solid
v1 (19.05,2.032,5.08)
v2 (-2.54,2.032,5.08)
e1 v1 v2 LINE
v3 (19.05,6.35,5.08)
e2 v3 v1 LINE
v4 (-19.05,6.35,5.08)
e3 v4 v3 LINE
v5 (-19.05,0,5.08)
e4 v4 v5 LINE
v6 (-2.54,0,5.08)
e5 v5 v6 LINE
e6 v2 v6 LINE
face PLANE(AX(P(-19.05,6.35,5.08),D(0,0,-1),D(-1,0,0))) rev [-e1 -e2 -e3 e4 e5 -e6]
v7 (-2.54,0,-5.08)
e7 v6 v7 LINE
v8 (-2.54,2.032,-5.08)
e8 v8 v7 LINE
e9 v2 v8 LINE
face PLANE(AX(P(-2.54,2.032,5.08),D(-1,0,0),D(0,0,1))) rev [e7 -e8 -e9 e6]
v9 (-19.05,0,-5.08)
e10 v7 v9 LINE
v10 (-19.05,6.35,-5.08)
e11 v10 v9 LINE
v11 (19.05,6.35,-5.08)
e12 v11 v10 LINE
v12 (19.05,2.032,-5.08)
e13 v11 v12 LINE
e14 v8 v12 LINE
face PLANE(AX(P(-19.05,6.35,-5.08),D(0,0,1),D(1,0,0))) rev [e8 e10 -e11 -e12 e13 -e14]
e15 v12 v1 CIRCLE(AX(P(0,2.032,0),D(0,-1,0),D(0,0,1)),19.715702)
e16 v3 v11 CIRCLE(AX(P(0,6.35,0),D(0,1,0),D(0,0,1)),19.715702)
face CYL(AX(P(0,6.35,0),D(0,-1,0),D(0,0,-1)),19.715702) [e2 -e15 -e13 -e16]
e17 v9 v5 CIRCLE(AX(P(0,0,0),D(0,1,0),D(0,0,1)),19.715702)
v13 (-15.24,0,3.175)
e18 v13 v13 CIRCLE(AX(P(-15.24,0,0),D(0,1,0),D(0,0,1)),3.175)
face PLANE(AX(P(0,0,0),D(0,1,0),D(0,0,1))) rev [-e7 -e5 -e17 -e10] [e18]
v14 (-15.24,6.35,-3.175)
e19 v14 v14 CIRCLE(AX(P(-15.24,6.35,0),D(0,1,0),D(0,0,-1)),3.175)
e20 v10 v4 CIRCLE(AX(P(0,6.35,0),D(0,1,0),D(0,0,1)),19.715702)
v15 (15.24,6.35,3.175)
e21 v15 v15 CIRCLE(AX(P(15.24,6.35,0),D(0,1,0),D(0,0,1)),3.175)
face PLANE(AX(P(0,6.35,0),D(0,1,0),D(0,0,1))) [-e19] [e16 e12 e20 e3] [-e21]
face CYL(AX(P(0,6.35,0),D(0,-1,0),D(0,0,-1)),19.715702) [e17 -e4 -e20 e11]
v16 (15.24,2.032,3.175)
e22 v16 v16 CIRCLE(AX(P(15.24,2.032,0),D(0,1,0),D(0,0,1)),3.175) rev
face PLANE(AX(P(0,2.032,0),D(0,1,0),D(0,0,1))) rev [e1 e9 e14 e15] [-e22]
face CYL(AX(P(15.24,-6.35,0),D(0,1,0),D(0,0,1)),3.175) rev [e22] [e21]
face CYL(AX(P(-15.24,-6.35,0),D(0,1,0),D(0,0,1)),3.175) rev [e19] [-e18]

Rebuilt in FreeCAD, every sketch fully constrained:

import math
import FreeCAD as App
import Part
import Sketcher
Q = App.Units.Quantity

doc = App.newDocument("Part")
body = doc.addObject("PartDesign::Body", "Body")

# Sketch on XZ plane
sketch1 = body.newObject("Sketcher::SketchObject", "Sketch")
sketch1.AttachmentSupport = (doc.getObject("XZ_Plane"), [""])
sketch1.MapMode = "FlatFace"
sketch1.addGeometry(Part.LineSegment(App.Vector(19.05, -5.08, 0), App.Vector(-19.05, -5.08, 0)), False)
sketch1.addGeometry(Part.ArcOfCircle(Part.Circle(App.Vector(0, 0, 0), App.Vector(0, 0, 1), 19.715702), math.radians(165.068583), math.radians(194.931417)), False)
sketch1.addGeometry(Part.LineSegment(App.Vector(-19.05, 5.08, 0), App.Vector(19.05, 5.08, 0)), False)
sketch1.addGeometry(Part.ArcOfCircle(Part.Circle(App.Vector(0, 0, 0), App.Vector(0, 0, 1), 19.715702), math.radians(-14.931417), math.radians(14.931417)), False)
sketch1.addConstraint(Sketcher.Constraint("Coincident", 0, 2, 1, 2))
sketch1.addConstraint(Sketcher.Constraint("Coincident", 1, 1, 2, 1))
sketch1.addConstraint(Sketcher.Constraint("Coincident", 2, 2, 3, 2))
sketch1.addConstraint(Sketcher.Constraint("Coincident", 3, 1, 0, 1))
sketch1.addConstraint(Sketcher.Constraint("Horizontal", 0))
sketch1.addConstraint(Sketcher.Constraint("Horizontal", 2))
sketch1.addConstraint(Sketcher.Constraint("Coincident", 1, 3, -1, 1))
sketch1.addConstraint(Sketcher.Constraint("Coincident", 3, 3, -1, 1))
sketch1.addConstraint(Sketcher.Constraint("Equal", 1, 3))
sketch1.addConstraint(Sketcher.Constraint("Vertical", 0, 2, 1, 1))
sketch1.addConstraint(Sketcher.Constraint("DistanceX", 0, 2, 0, 1, Q("1.5 in")))
sketch1.addConstraint(Sketcher.Constraint("DistanceY", 0, 2, -1, 1, Q("0.2 in")))
pad1 = body.newObject("PartDesign::Pad", "Pad")
pad1.Profile = sketch1
pad1.Length = Q("0.25 in")
pad1.Reversed = True

# Sketch on XZ plane
sketch2 = body.newObject("Sketcher::SketchObject", "Sketch001")
sketch2.AttachmentSupport = (doc.getObject("XZ_Plane"), [""])
sketch2.MapMode = "FlatFace"
sketch2.AttachmentOffset = App.Placement(App.Vector(0, 0, -0.25 * 25.4), App.Rotation())
sketch2.addGeometry(Part.Circle(App.Vector(15.24, 0, 0), App.Vector(0, 0, 1), 3.175), False)
sketch2.addGeometry(Part.Circle(App.Vector(-15.24, 0, 0), App.Vector(0, 0, 1), 3.175), False)
sketch2.addConstraint(Sketcher.Constraint("Equal", 0, 1))
sketch2.addConstraint(Sketcher.Constraint("Symmetric", 0, 3, 1, 3, -1, 1))
sketch2.addConstraint(Sketcher.Constraint("PointOnObject", 0, 3, -1))
sketch2.addConstraint(Sketcher.Constraint("Diameter", 0, Q("0.25 in")))
sketch2.addConstraint(Sketcher.Constraint("DistanceX", -1, 1, 0, 3, Q("0.6 in")))
pocket1 = body.newObject("PartDesign::Pocket", "Pocket")
pocket1.Profile = sketch2
pocket1.Length = Q("0.5 in")
pocket1.Reversed = True

# Sketch on XZ plane
sketch3 = body.newObject("Sketcher::SketchObject", "Sketch002")
sketch3.AttachmentSupport = (doc.getObject("XZ_Plane"), [""])
sketch3.MapMode = "FlatFace"
sketch3.addGeometry(Part.LineSegment(App.Vector(19.05, 5.08, 0), App.Vector(-2.54, 5.08, 0)), False)
sketch3.addGeometry(Part.LineSegment(App.Vector(-2.54, 5.08, 0), App.Vector(-2.54, -5.08, 0)), False)
sketch3.addGeometry(Part.LineSegment(App.Vector(-2.54, -5.08, 0), App.Vector(19.05, -5.08, 0)), False)
sketch3.addGeometry(Part.ArcOfCircle(Part.Circle(App.Vector(0, 0, 0), App.Vector(0, 0, 1), 19.715702), math.radians(-14.931417), math.radians(14.931417)), False)
sketch3.addConstraint(Sketcher.Constraint("Coincident", 0, 2, 1, 1))
sketch3.addConstraint(Sketcher.Constraint("Coincident", 1, 2, 2, 1))
sketch3.addConstraint(Sketcher.Constraint("Coincident", 2, 2, 3, 1))
sketch3.addConstraint(Sketcher.Constraint("Coincident", 3, 2, 0, 1))
sketch3.addConstraint(Sketcher.Constraint("Horizontal", 0))
sketch3.addConstraint(Sketcher.Constraint("Vertical", 1))
sketch3.addConstraint(Sketcher.Constraint("Horizontal", 2))
sketch3.addConstraint(Sketcher.Constraint("Coincident", 3, 3, -1, 1))
sketch3.addConstraint(Sketcher.Constraint("Vertical", 2, 2, 3, 2))
sketch3.addConstraint(Sketcher.Constraint("DistanceY", 1, 2, 1, 1, Q("0.4 in")))
sketch3.addConstraint(Sketcher.Constraint("DistanceX", 0, 2, 0, 1, Q("0.85 in")))
sketch3.addConstraint(Sketcher.Constraint("DistanceX", 0, 2, -1, 1, Q("0.1 in")))
pocket2 = body.newObject("PartDesign::Pocket", "Pocket001")
pocket2.Profile = sketch3
pocket2.Length = Q("0.08 in")

doc.recompute()
